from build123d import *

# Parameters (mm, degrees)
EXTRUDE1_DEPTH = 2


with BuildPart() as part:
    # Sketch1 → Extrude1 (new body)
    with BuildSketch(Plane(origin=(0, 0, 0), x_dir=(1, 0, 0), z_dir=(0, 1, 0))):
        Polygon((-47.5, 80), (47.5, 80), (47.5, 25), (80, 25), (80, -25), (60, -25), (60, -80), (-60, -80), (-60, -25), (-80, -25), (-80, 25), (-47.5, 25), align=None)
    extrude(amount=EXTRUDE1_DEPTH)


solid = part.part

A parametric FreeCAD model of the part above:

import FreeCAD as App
import Part
import Sketcher

V = App.Vector
Q = App.Units.Quantity

doc = App.newDocument("Part")
params = doc.addObject("Spreadsheet::Sheet", "Params")
for row, (alias, value) in enumerate([
    ("sketch1_width", "95 mm"),
    ("sketch1_width2", "20 mm"),
    ("sketch1_width3", "120 mm"),
    ("sketch1_height", "55 mm"),
    ("sketch1_height2", "50 mm"),
    ("pad1_length", "2 mm"),
], start=1):
    params.set(f"A{row}", alias)
    params.set(f"B{row}", "=" + value)
    params.setAlias(f"B{row}", alias)

body = doc.addObject("PartDesign::Body", "Body")

# Sketch on XZ plane
sketch1 = body.newObject("Sketcher::SketchObject", "Sketch")
sketch1.AttachmentSupport = (doc.getObject("XZ_Plane"), [""])
sketch1.MapMode = "FlatFace"
sketch1.addGeometry(Part.LineSegment(V(48, -80, 0), V(-48, -80, 0)), False)
sketch1.addGeometry(Part.LineSegment(V(-48, -80, 0), V(-48, -25, 0)), False)
sketch1.addGeometry(Part.LineSegment(V(-48, -25, 0), V(-80, -25, 0)), False)
sketch1.addGeometry(Part.LineSegment(V(-80, -25, 0), V(-80, 25, 0)), False)
sketch1.addGeometry(Part.LineSegment(V(-80, 25, 0), V(-60, 25, 0)), False)
sketch1.addGeometry(Part.LineSegment(V(-60, 25, 0), V(-60, 80, 0)), False)
sketch1.addGeometry(Part.LineSegment(V(-60, 80, 0), V(60, 80, 0)), False)
sketch1.addGeometry(Part.LineSegment(V(60, 80, 0), V(60, 25, 0)), False)
sketch1.addGeometry(Part.LineSegment(V(60, 25, 0), V(80, 25, 0)), False)
sketch1.addGeometry(Part.LineSegment(V(80, 25, 0), V(80, -25, 0)), False)
sketch1.addGeometry(Part.LineSegment(V(80, -25, 0), V(48, -25, 0)), False)
sketch1.addGeometry(Part.LineSegment(V(48, -25, 0), V(48, -80, 0)), False)
sketch1.addConstraint(Sketcher.Constraint("Coincident", 0, 2, 1, 1))
sketch1.addConstraint(Sketcher.Constraint("Coincident", 1, 2, 2, 1))
sketch1.addConstraint(Sketcher.Constraint("Coincident", 2, 2, 3, 1))
sketch1.addConstraint(Sketcher.Constraint("Coincident", 3, 2, 4, 1))
sketch1.addConstraint(Sketcher.Constraint("Coincident", 4, 2, 5, 1))
sketch1.addConstraint(Sketcher.Constraint("Coincident", 5, 2, 6, 1))
sketch1.addConstraint(Sketcher.Constraint("Coincident", 6, 2, 7, 1))
sketch1.addConstraint(Sketcher.Constraint("Coincident", 7, 2, 8, 1))
sketch1.addConstraint(Sketcher.Constraint("Coincident", 8, 2, 9, 1))
sketch1.addConstraint(Sketcher.Constraint("Coincident", 9, 2, 10, 1))
sketch1.addConstraint(Sketcher.Constraint("Coincident", 10, 2, 11, 1))
sketch1.addConstraint(Sketcher.Constraint("Coincident", 11, 2, 0, 1))
sketch1.addConstraint(Sketcher.Constraint("Horizontal", 0))
sketch1.addConstraint(Sketcher.Constraint("Vertical", 1))
sketch1.addConstraint(Sketcher.Constraint("Horizontal", 2))
sketch1.addConstraint(Sketcher.Constraint("Vertical", 3))
sketch1.addConstraint(Sketcher.Constraint("Horizontal", 4))
sketch1.addConstraint(Sketcher.Constraint("Vertical", 5))
sketch1.addConstraint(Sketcher.Constraint("Horizontal", 6))
sketch1.addConstraint(Sketcher.Constraint("Vertical", 7))
sketch1.addConstraint(Sketcher.Constraint("Horizontal", 8))
sketch1.addConstraint(Sketcher.Constraint("Vertical", 9))
sketch1.addConstraint(Sketcher.Constraint("Horizontal", 10))
sketch1.addConstraint(Sketcher.Constraint("Vertical", 11))
sketch1.addConstraint(Sketcher.Constraint("Symmetric", 2, 2, 8, 2, -1, 1))
sketch1.addConstraint(Sketcher.Constraint("Symmetric", 4, 2, 7, 2, -2))
sketch1.addConstraint(Sketcher.Constraint("Symmetric", 1, 2, 10, 2, -2))
sketch1.addConstraint(Sketcher.Constraint("Equal", 1, 5))
sketch1.addConstraint(Sketcher.Constraint("DistanceX", 0, 2, 0, 1, Q("95 mm")))
sketch1.addConstraint(Sketcher.Constraint("DistanceX", 4, 1, 4, 2, Q("20 mm")))
sketch1.addConstraint(Sketcher.Constraint("DistanceX", 6, 1, 6, 2, Q("120 mm")))
sketch1.addConstraint(Sketcher.Constraint("DistanceY", 1, 1, 1, 2, Q("55 mm")))
sketch1.addConstraint(Sketcher.Constraint("DistanceY", 3, 1, 3, 2, Q("50 mm")))
sketch1.setExpression("Constraints[28]", "Params.sketch1_width")
sketch1.setExpression("Constraints[29]", "Params.sketch1_width2")
sketch1.setExpression("Constraints[30]", "Params.sketch1_width3")
sketch1.setExpression("Constraints[31]", "Params.sketch1_height")
sketch1.setExpression("Constraints[32]", "Params.sketch1_height2")
pad1 = body.newObject("PartDesign::Pad", "Pad")
pad1.Profile = sketch1
pad1.setExpression("Length", "Params.pad1_length")
pad1.Reversed = True

doc.recompute()
